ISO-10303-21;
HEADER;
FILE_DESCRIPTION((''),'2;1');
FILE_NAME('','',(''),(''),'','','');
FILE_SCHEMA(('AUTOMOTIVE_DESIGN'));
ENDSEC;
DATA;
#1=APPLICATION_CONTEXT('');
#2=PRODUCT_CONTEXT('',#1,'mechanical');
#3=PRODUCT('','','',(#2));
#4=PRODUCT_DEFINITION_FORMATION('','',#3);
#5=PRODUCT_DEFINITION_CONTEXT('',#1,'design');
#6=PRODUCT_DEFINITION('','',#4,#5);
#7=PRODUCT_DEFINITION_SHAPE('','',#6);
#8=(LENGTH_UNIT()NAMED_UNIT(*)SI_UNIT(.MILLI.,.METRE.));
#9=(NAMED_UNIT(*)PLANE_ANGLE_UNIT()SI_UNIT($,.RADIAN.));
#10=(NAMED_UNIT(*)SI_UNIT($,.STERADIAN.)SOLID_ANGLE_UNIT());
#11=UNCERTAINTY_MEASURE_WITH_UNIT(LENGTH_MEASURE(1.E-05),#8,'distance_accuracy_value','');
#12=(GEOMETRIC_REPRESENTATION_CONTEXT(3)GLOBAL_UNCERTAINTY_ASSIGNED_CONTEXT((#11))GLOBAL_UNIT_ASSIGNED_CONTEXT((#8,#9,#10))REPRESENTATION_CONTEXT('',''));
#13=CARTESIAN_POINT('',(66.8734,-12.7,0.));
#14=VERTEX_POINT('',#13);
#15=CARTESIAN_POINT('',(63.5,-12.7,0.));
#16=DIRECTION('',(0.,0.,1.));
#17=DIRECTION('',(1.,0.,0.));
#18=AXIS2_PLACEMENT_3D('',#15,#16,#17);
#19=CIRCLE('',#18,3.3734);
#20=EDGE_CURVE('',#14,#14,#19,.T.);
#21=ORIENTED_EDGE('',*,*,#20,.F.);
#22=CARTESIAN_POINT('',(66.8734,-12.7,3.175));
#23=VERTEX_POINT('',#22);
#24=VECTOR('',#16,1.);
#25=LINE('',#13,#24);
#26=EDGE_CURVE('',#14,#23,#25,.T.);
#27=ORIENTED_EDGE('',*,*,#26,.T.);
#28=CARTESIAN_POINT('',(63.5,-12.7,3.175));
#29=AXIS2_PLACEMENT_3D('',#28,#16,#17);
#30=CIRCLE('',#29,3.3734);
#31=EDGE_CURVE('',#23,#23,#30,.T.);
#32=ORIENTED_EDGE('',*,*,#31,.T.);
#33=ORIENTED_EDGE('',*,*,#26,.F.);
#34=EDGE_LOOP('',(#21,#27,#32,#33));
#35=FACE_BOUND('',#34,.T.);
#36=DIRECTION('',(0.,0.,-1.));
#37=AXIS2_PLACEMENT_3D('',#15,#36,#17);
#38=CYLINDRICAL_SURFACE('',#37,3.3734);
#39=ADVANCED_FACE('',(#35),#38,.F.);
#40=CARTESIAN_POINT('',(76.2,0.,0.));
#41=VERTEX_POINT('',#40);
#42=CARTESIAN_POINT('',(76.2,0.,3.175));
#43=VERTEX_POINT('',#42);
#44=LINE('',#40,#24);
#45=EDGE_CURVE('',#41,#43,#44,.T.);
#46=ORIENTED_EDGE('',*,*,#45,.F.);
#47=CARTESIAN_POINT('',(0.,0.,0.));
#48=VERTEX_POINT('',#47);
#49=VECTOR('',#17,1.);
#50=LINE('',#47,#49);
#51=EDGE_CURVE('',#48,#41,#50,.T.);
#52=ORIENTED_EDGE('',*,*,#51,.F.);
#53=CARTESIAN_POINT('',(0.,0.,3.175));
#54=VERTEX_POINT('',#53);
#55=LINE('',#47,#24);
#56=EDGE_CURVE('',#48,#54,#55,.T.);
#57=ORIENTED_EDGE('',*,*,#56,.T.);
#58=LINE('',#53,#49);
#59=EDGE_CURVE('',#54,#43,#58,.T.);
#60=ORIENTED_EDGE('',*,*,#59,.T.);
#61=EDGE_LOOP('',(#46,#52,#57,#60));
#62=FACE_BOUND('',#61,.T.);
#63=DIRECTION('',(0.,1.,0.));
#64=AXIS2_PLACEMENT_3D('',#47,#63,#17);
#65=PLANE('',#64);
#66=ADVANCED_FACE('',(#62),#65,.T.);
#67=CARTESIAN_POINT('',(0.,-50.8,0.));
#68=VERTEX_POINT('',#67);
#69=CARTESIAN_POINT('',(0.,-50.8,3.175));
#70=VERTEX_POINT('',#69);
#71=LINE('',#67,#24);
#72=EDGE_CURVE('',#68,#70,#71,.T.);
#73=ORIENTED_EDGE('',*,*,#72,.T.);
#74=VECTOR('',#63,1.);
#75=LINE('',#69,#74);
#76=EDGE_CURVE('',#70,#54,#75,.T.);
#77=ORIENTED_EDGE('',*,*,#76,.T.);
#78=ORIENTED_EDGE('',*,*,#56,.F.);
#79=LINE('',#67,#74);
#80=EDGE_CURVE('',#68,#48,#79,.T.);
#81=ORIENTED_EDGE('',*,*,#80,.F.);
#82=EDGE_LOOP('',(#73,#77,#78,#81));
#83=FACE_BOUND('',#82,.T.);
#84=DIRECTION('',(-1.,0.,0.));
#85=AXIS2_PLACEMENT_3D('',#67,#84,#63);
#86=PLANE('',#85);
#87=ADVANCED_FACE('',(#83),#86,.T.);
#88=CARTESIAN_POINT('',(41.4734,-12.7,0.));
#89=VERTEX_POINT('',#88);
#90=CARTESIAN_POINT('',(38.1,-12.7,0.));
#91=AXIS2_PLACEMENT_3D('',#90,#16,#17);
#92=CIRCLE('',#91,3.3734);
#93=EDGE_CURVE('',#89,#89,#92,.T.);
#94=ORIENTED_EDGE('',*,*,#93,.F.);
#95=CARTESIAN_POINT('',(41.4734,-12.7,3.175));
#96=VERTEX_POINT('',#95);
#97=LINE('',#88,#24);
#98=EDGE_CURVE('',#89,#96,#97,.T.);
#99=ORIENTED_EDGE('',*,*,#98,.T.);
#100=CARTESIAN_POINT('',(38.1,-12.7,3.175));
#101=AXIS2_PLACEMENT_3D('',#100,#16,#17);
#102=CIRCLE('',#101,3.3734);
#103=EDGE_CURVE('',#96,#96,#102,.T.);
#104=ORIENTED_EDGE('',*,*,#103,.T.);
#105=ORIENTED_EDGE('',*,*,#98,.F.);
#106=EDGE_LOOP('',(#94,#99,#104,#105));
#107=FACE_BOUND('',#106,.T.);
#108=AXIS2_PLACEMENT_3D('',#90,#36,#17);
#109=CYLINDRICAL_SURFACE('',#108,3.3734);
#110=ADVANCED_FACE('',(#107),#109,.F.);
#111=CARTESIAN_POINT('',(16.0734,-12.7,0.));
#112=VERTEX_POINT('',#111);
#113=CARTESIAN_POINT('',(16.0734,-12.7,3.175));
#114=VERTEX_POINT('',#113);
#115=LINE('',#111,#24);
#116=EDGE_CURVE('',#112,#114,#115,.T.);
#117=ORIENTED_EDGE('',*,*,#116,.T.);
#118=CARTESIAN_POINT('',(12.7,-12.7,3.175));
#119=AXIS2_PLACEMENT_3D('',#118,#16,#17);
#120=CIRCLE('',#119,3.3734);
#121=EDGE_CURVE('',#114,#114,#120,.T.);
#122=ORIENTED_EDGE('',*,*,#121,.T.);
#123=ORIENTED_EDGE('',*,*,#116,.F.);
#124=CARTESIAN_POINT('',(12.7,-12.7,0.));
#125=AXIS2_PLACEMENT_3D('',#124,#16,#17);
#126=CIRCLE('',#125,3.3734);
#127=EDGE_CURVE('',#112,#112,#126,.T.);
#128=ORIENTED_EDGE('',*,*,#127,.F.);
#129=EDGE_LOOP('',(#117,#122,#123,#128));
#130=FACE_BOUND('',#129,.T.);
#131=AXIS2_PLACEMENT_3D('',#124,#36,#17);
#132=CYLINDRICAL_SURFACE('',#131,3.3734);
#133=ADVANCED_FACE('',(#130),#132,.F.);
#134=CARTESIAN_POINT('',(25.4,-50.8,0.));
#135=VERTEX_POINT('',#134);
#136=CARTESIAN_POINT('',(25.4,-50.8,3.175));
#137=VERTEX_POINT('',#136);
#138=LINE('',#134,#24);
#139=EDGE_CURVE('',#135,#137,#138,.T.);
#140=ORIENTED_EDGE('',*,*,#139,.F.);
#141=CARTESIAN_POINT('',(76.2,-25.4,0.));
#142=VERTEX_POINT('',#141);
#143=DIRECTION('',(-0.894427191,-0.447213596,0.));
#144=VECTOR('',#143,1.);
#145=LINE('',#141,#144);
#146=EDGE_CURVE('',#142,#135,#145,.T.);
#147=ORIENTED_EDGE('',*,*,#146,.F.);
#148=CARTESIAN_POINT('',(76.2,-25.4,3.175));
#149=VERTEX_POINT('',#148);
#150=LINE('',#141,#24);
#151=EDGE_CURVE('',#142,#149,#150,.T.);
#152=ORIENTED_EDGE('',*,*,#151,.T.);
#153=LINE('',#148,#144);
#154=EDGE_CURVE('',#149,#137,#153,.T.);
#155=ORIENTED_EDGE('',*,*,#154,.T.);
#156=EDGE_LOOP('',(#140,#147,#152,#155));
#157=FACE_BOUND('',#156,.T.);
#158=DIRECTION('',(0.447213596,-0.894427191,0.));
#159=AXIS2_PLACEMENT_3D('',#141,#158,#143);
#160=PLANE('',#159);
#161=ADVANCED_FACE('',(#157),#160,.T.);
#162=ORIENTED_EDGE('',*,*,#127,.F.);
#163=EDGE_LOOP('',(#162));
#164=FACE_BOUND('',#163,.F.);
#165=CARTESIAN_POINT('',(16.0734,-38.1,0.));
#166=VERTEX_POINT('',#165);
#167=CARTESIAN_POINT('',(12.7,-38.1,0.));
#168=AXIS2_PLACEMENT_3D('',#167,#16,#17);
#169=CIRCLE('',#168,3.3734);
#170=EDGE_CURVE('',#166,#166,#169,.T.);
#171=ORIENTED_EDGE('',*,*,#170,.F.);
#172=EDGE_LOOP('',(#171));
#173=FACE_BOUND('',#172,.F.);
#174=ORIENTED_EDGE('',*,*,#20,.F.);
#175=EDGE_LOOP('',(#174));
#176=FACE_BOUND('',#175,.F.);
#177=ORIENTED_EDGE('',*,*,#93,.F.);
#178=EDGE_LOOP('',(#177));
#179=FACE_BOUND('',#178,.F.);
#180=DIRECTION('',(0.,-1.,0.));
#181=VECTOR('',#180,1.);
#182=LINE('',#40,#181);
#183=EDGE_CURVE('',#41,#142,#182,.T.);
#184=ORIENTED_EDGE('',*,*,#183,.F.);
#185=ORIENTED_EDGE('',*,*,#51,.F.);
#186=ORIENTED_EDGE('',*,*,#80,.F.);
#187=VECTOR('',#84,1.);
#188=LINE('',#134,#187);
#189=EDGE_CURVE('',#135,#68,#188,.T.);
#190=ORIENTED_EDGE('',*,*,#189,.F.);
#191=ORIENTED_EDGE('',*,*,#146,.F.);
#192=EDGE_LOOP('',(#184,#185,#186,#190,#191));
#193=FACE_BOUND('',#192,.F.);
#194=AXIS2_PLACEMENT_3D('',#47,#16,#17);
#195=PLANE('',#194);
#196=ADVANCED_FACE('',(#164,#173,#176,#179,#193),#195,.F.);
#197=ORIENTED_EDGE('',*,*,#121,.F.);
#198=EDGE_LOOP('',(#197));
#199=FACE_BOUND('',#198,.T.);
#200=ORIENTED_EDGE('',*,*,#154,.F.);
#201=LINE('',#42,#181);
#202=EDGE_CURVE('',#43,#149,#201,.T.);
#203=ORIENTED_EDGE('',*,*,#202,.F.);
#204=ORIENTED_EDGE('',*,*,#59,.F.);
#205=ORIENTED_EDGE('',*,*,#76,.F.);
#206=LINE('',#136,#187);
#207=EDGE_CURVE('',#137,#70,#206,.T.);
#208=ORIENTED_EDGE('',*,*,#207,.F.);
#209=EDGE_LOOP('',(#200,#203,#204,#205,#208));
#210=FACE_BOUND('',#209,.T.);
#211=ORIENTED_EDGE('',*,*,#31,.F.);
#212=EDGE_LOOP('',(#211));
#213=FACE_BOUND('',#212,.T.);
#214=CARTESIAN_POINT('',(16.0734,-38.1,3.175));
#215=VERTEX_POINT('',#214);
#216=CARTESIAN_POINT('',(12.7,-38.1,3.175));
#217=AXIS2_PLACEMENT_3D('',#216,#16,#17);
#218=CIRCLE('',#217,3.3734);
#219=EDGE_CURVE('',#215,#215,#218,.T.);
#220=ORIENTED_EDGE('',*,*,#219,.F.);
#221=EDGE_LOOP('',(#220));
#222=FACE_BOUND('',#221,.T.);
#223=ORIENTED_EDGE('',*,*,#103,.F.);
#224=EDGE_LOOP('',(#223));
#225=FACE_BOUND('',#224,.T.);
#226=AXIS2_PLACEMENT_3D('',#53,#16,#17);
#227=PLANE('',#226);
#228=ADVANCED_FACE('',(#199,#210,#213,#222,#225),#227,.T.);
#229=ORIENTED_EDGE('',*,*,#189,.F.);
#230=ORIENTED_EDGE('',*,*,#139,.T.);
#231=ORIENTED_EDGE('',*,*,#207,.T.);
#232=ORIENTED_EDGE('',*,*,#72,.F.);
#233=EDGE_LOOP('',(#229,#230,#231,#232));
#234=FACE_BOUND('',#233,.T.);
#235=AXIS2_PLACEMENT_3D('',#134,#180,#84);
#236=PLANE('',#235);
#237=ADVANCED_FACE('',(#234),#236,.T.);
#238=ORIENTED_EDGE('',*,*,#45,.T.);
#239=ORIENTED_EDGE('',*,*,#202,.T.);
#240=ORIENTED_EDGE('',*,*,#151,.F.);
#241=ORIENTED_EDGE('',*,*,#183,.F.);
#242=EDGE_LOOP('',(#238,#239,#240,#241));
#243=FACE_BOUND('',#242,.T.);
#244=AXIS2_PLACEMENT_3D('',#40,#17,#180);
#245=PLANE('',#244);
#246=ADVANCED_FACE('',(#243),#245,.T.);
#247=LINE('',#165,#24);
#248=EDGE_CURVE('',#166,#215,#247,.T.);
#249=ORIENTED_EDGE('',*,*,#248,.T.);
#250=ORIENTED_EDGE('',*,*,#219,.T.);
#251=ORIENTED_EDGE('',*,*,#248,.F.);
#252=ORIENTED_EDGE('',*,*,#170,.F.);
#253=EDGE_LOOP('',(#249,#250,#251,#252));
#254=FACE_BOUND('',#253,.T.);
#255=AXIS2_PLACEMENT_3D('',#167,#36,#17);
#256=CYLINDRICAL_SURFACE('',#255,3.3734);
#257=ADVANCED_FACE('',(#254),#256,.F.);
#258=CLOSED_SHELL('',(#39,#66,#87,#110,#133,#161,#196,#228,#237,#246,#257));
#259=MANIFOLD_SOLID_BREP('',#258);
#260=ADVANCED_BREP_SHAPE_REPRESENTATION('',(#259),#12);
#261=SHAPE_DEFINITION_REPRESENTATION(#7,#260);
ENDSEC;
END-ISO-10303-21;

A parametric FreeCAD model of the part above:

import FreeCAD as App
import Part
import Sketcher
Q = App.Units.Quantity


def add_polygon(sketch, points):
    """Adds a closed chain of lines whose ends are joined by coincident constraints."""
    first, n = sketch.GeometryCount, len(points)
    for a, b in zip(points, points[1:] + points[:1]):
        sketch.addGeometry(Part.LineSegment(App.Vector(*a, 0), App.Vector(*b, 0)), False)
    for i in range(n):
        sketch.addConstraint(Sketcher.Constraint("Coincident", first + i, 2, first + (i + 1) % n, 1))

doc = App.newDocument("Part")
body = doc.addObject("PartDesign::Body", "Body")

sketch1 = doc.addObject("Sketcher::SketchObject", "Sketch")
body.addObject(sketch1)
sketch1.AttachmentSupport = (doc.XY_Plane, [""])
sketch1.MapMode = "FlatFace"
add_polygon(sketch1, [(76.2, 0), (0, 0), (0, -50.8), (25.4, -50.8), (76.2, -25.4)])
sketch1.addGeometry(Part.Circle(App.Vector(12.7, -38.1, 0), App.Vector(0, 0, 1), 3.4), False)
sketch1.addGeometry(Part.Circle(App.Vector(12.7, -12.7, 0), App.Vector(0, 0, 1), 3.4), False)
sketch1.addGeometry(Part.Circle(App.Vector(38.1, -12.7, 0), App.Vector(0, 0, 1), 3.4), False)
sketch1.addGeometry(Part.Circle(App.Vector(63.5, -12.7, 0), App.Vector(0, 0, 1), 3.4), False)
sketch1.addConstraint([
    Sketcher.Constraint("Horizontal", 0),
    Sketcher.Constraint("Vertical", 1),
    Sketcher.Constraint("Horizontal", 2),
    Sketcher.Constraint("Vertical", 4),
    Sketcher.Constraint("Coincident", 0, 2, -1, 1),
    Sketcher.Constraint("Equal", 5, 6),
    Sketcher.Constraint("Equal", 6, 7),
    Sketcher.Constraint("Equal", 7, 8),
    Sketcher.Constraint("Horizontal", 6, 3, 7, 3),
    Sketcher.Constraint("Horizontal", 7, 3, 8, 3),
    Sketcher.Constraint("Vertical", 5, 3, 6, 3),
    Sketcher.Constraint("Equal", 2, 4),
    Sketcher.Constraint("DistanceX", 0, 2, 0, 1, Q("3 in")),
    Sketcher.Constraint("DistanceX", 2, 1, 2, 2, Q("1 in")),
    Sketcher.Constraint("DistanceY", 1, 2, 1, 1, Q("2 in")),
    Sketcher.Constraint("Diameter", 5, Q("0.265622 in")),
    Sketcher.Constraint("DistanceY", 5, 3, 6, 3, Q("1 in")),
    Sketcher.Constraint("DistanceX", 6, 3, 7, 3, Q("1 in")),
    Sketcher.Constraint("DistanceX", 7, 3, 8, 3, Q("1 in")),
    Sketcher.Constraint("DistanceX", -1, 1, 5, 3, Q("0.5 in")),
    Sketcher.Constraint("DistanceY", 5, 3, -1, 1, Q("1.5 in")),
])
pad1 = doc.addObject("PartDesign::Pad", "Pad")
body.addObject(pad1)
pad1.Profile = sketch1
pad1.Length = Q("0.125 in")

doc.recompute()
